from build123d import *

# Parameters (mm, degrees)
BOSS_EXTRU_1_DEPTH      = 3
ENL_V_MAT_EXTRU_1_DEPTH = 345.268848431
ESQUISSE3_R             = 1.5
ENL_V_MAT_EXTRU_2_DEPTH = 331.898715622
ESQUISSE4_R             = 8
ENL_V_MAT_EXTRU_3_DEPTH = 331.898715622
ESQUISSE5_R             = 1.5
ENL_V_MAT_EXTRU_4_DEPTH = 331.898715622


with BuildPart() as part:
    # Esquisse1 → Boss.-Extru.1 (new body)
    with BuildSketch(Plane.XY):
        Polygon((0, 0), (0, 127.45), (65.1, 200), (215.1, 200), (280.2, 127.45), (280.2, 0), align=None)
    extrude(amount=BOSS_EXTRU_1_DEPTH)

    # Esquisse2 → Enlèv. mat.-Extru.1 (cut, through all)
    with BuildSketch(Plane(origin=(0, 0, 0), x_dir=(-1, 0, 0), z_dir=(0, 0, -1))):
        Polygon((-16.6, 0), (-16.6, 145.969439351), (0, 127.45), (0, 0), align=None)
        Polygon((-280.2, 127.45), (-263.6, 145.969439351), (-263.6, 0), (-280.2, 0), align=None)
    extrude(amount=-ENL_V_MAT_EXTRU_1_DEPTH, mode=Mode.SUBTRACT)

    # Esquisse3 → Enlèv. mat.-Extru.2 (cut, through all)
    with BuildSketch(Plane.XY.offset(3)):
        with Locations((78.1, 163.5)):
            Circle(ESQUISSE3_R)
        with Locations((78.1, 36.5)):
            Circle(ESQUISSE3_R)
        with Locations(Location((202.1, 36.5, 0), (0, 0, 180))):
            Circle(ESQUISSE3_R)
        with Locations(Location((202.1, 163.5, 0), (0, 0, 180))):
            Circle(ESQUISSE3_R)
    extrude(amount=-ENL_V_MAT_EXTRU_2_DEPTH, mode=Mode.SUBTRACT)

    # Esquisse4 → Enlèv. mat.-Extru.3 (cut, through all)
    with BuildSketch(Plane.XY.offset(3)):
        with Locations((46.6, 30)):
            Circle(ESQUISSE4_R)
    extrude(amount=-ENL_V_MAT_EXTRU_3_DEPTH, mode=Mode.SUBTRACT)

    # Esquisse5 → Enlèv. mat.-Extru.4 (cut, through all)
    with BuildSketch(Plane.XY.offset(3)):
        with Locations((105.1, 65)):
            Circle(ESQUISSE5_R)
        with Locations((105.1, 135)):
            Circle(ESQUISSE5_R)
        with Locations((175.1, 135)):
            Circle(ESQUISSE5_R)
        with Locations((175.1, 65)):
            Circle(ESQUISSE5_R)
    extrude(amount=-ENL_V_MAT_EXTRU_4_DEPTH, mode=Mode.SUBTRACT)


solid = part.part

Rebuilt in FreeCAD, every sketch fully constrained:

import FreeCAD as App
import Part
import Sketcher

V = App.Vector
Q = App.Units.Quantity

doc = App.newDocument("Part")
params = doc.addObject("Spreadsheet::Sheet", "Params")
for row, (alias, value) in enumerate([
    ("sketch1_width", "150 mm"),
    ("sketch1_width2", "280.2 mm"),
    ("sketch1_height", "127.45 mm"),
    ("pad1_length", "3 mm"),
    ("sketch2_width", "16.6 mm"),
    ("sketch2_height", "127.45 mm"),
    ("sketch3_diameter", "3 mm"),
    ("sketch4_diameter", "16 mm"),
    ("sketch5_diameter", "3 mm"),
], start=1):
    params.set(f"A{row}", alias)
    params.set(f"B{row}", "=" + value)
    params.setAlias(f"B{row}", alias)

body = doc.addObject("PartDesign::Body", "Body")

sketch1 = doc.addObject("Sketcher::SketchObject", "Sketch")
body.addObject(sketch1)
sketch1.AttachmentSupport = (doc.XY_Plane, [""])
sketch1.MapMode = "FlatFace"
sketch1.addGeometry(Part.LineSegment(V(0, 127, 0), V(0, 0, 0)), False)
sketch1.addGeometry(Part.LineSegment(V(0, 0, 0), V(280, 0, 0)), False)
sketch1.addGeometry(Part.LineSegment(V(280, 0, 0), V(280, 127, 0)), False)
sketch1.addGeometry(Part.LineSegment(V(280, 127, 0), V(215, 200, 0)), False)
sketch1.addGeometry(Part.LineSegment(V(215, 200, 0), V(65, 200, 0)), False)
sketch1.addGeometry(Part.LineSegment(V(65, 200, 0), V(0, 127, 0)), False)
sketch1.addConstraint(Sketcher.Constraint("Coincident", 0, 2, 1, 1))
sketch1.addConstraint(Sketcher.Constraint("Coincident", 1, 2, 2, 1))
sketch1.addConstraint(Sketcher.Constraint("Coincident", 2, 2, 3, 1))
sketch1.addConstraint(Sketcher.Constraint("Coincident", 3, 2, 4, 1))
sketch1.addConstraint(Sketcher.Constraint("Coincident", 4, 2, 5, 1))
sketch1.addConstraint(Sketcher.Constraint("Coincident", 5, 2, 0, 1))
sketch1.addConstraint(Sketcher.Constraint("Vertical", 0))
sketch1.addConstraint(Sketcher.Constraint("Horizontal", 1))
sketch1.addConstraint(Sketcher.Constraint("Vertical", 2))
sketch1.addConstraint(Sketcher.Constraint("Horizontal", 4))
sketch1.addConstraint(Sketcher.Constraint("Coincident", 0, 2, -1, 1))
sketch1.addConstraint(Sketcher.Constraint("Horizontal", 2, 2, 5, 2))
sketch1.addConstraint(Sketcher.Constraint("Equal", 3, 5))
sketch1.addConstraint(Sketcher.Constraint("DistanceX", 4, 2, 4, 1, Q("150 mm")))
sketch1.addConstraint(Sketcher.Constraint("DistanceX", 1, 1, 1, 2, Q("280.2 mm")))
sketch1.addConstraint(Sketcher.Constraint("DistanceY", -1, 1, 3, 2, Q("200 mm")))
sketch1.addConstraint(Sketcher.Constraint("DistanceY", 0, 2, 0, 1, Q("127.45 mm")))
sketch1.setExpression("Constraints[13]", "Params.sketch1_width")
sketch1.setExpression("Constraints[14]", "Params.sketch1_width2")
sketch1.setExpression("Constraints[16]", "Params.sketch1_height")
pad1 = doc.addObject("PartDesign::Pad", "Pad")
body.addObject(pad1)
pad1.Profile = sketch1
pad1.setExpression("Length", "Params.pad1_length")

sketch2 = doc.addObject("Sketcher::SketchObject", "Sketch001")
body.addObject(sketch2)
sketch2.AttachmentSupport = (doc.XY_Plane, [""])
sketch2.MapMode = "FlatFace"
sketch2.addGeometry(Part.LineSegment(V(17, 146, 0), V(17, 0, 0)), False)
sketch2.addGeometry(Part.LineSegment(V(17, 0, 0), V(0, 0, 0)), False)
sketch2.addGeometry(Part.LineSegment(V(0, 0, 0), V(0, 127, 0)), False)
sketch2.addGeometry(Part.LineSegment(V(0, 127, 0), V(17, 146, 0)), False)
sketch2.addGeometry(Part.LineSegment(V(264, 146, 0), V(280, 127, 0)), False)
sketch2.addGeometry(Part.LineSegment(V(280, 127, 0), V(280, 0, 0)), False)
sketch2.addGeometry(Part.LineSegment(V(280, 0, 0), V(264, 0, 0)), False)
sketch2.addGeometry(Part.LineSegment(V(264, 0, 0), V(264, 146, 0)), False)
sketch2.addConstraint(Sketcher.Constraint("Coincident", 0, 2, 1, 1))
sketch2.addConstraint(Sketcher.Constraint("Coincident", 1, 2, 2, 1))
sketch2.addConstraint(Sketcher.Constraint("Coincident", 2, 2, 3, 1))
sketch2.addConstraint(Sketcher.Constraint("Coincident", 3, 2, 0, 1))
sketch2.addConstraint(Sketcher.Constraint("Coincident", 4, 2, 5, 1))
sketch2.addConstraint(Sketcher.Constraint("Coincident", 5, 2, 6, 1))
sketch2.addConstraint(Sketcher.Constraint("Coincident", 6, 2, 7, 1))
sketch2.addConstraint(Sketcher.Constraint("Coincident", 7, 2, 4, 1))
sketch2.addConstraint(Sketcher.Constraint("Vertical", 0))
sketch2.addConstraint(Sketcher.Constraint("Horizontal", 1))
sketch2.addConstraint(Sketcher.Constraint("Vertical", 2))
sketch2.addConstraint(Sketcher.Constraint("Vertical", 5))
sketch2.addConstraint(Sketcher.Constraint("Horizontal", 6))
sketch2.addConstraint(Sketcher.Constraint("Vertical", 7))
sketch2.addConstraint(Sketcher.Constraint("Coincident", 1, 2, -1, 1))
sketch2.addConstraint(Sketcher.Constraint("PointOnObject", 5, 2, -1))
sketch2.addConstraint(Sketcher.Constraint("Horizontal", 2, 2, 4, 2))
sketch2.addConstraint(Sketcher.Constraint("Horizontal", 3, 2, 7, 2))
sketch2.addConstraint(Sketcher.Constraint("Equal", 1, 6))
sketch2.addConstraint(Sketcher.Constraint("DistanceX", 1, 2, 1, 1, Q("16.6 mm")))
sketch2.addConstraint(Sketcher.Constraint("DistanceX", 0, 2, 6, 2, Q("247 mm")))
sketch2.addConstraint(Sketcher.Constraint("DistanceY", 2, 1, 2, 2, Q("127.45 mm")))
sketch2.addConstraint(Sketcher.Constraint("DistanceY", 0, 2, 0, 1, Q("145.969439 mm")))
sketch2.setExpression("Constraints[19]", "Params.sketch2_width")
sketch2.setExpression("Constraints[21]", "Params.sketch2_height")
pocket1 = doc.addObject("PartDesign::Pocket", "Pocket")
body.addObject(pocket1)
pocket1.Profile = sketch2
pocket1.Type = "ThroughAll"
pocket1.Reversed = True

sketch3 = doc.addObject("Sketcher::SketchObject", "Sketch002")
body.addObject(sketch3)
sketch3.AttachmentSupport = (doc.XY_Plane, [""])
sketch3.MapMode = "FlatFace"
sketch3.AttachmentOffset = App.Placement(V(0, 0, 3), App.Rotation())
sketch3.addGeometry(Part.Circle(V(78.1, 163.5, 0), V(0, 0, 1), 1.5), False)
sketch3.addGeometry(Part.Circle(V(78.1, 36.5, 0), V(0, 0, 1), 1.5), False)
sketch3.addGeometry(Part.Circle(V(202.1, 36.5, 0), V(0, 0, 1), 1.5), False)
sketch3.addGeometry(Part.Circle(V(202.1, 163.5, 0), V(0, 0, 1), 1.5), False)
sketch3.addConstraint(Sketcher.Constraint("Equal", 0, 1))
sketch3.addConstraint(Sketcher.Constraint("Equal", 1, 2))
sketch3.addConstraint(Sketcher.Constraint("Equal", 2, 3))
sketch3.addConstraint(Sketcher.Constraint("Horizontal", 1, 3, 2, 3))
sketch3.addConstraint(Sketcher.Constraint("Horizontal", 0, 3, 3, 3))
sketch3.addConstraint(Sketcher.Constraint("Vertical", 0, 3, 1, 3))
sketch3.addConstraint(Sketcher.Constraint("Vertical", 2, 3, 3, 3))
sketch3.addConstraint(Sketcher.Constraint("Diameter", 0, Q("3 mm")))
sketch3.addConstraint(Sketcher.Constraint("DistanceY", 1, 3, 0, 3, Q("127 mm")))
sketch3.addConstraint(Sketcher.Constraint("DistanceX", 1, 3, 2, 3, Q("124 mm")))
sketch3.addConstraint(Sketcher.Constraint("DistanceX", -1, 1, 0, 3, Q("78.1 mm")))
sketch3.addConstraint(Sketcher.Constraint("DistanceY", -1, 1, 0, 3, Q("163.5 mm")))
sketch3.setExpression("Constraints[7]", "Params.sketch3_diameter")
pocket2 = doc.addObject("PartDesign::Pocket", "Pocket001")
body.addObject(pocket2)
pocket2.Profile = sketch3
pocket2.Type = "ThroughAll"

sketch4 = doc.addObject("Sketcher::SketchObject", "Sketch003")
body.addObject(sketch4)
sketch4.AttachmentSupport = (doc.XY_Plane, [""])
sketch4.MapMode = "FlatFace"
sketch4.AttachmentOffset = App.Placement(V(0, 0, 3), App.Rotation())
sketch4.addGeometry(Part.Circle(V(47, 30, 0), V(0, 0, 1), 8), False)
sketch4.addConstraint(Sketcher.Constraint("Diameter", 0, Q("16 mm")))
sketch4.addConstraint(Sketcher.Constraint("DistanceY", -1, 1, 0, 3, Q("30 mm")))
sketch4.addConstraint(Sketcher.Constraint("DistanceX", -1, 1, 0, 3, Q("46.6 mm")))
sketch4.setExpression("Constraints[0]", "Params.sketch4_diameter")
pocket3 = doc.addObject("PartDesign::Pocket", "Pocket002")
body.addObject(pocket3)
pocket3.Profile = sketch4
pocket3.Type = "ThroughAll"

sketch5 = doc.addObject("Sketcher::SketchObject", "Sketch004")
body.addObject(sketch5)
sketch5.AttachmentSupport = (doc.XY_Plane, [""])
sketch5.MapMode = "FlatFace"
sketch5.AttachmentOffset = App.Placement(V(0, 0, 3), App.Rotation())
sketch5.addGeometry(Part.Circle(V(105.1, 65, 0), V(0, 0, 1), 1.5), False)
sketch5.addGeometry(Part.Circle(V(105.1, 135, 0), V(0, 0, 1), 1.5), False)
sketch5.addGeometry(Part.Circle(V(175.1, 135, 0), V(0, 0, 1), 1.5), False)
sketch5.addGeometry(Part.Circle(V(175.1, 65, 0), V(0, 0, 1), 1.5), False)
sketch5.addConstraint(Sketcher.Constraint("Equal", 0, 1))
sketch5.addConstraint(Sketcher.Constraint("Equal", 1, 2))
sketch5.addConstraint(Sketcher.Constraint("Equal", 2, 3))
sketch5.addConstraint(Sketcher.Constraint("Horizontal", 1, 3, 2, 3))
sketch5.addConstraint(Sketcher.Constraint("Horizontal", 0, 3, 3, 3))
sketch5.addConstraint(Sketcher.Constraint("Vertical", 0, 3, 1, 3))
sketch5.addConstraint(Sketcher.Constraint("Vertical", 2, 3, 3, 3))
sketch5.addConstraint(Sketcher.Constraint("Diameter", 0, Q("3 mm")))
sketch5.addConstraint(Sketcher.Constraint("DistanceY", -1, 1, 0, 3, Q("65 mm")))
sketch5.addConstraint(Sketcher.Constraint("DistanceY", -1, 1, 1, 3, Q("135 mm")))
sketch5.addConstraint(Sketcher.Constraint("DistanceX", 1, 3, 2, 3, Q("70 mm")))
sketch5.addConstraint(Sketcher.Constraint("DistanceX", -1, 1, 0, 3, Q("105.1 mm")))
sketch5.setExpression("Constraints[7]", "Params.sketch5_diameter")
pocket4 = doc.addObject("PartDesign::Pocket", "Pocket003")
body.addObject(pocket4)
pocket4.Profile = sketch5
pocket4.Type = "ThroughAll"

doc.recompute()
